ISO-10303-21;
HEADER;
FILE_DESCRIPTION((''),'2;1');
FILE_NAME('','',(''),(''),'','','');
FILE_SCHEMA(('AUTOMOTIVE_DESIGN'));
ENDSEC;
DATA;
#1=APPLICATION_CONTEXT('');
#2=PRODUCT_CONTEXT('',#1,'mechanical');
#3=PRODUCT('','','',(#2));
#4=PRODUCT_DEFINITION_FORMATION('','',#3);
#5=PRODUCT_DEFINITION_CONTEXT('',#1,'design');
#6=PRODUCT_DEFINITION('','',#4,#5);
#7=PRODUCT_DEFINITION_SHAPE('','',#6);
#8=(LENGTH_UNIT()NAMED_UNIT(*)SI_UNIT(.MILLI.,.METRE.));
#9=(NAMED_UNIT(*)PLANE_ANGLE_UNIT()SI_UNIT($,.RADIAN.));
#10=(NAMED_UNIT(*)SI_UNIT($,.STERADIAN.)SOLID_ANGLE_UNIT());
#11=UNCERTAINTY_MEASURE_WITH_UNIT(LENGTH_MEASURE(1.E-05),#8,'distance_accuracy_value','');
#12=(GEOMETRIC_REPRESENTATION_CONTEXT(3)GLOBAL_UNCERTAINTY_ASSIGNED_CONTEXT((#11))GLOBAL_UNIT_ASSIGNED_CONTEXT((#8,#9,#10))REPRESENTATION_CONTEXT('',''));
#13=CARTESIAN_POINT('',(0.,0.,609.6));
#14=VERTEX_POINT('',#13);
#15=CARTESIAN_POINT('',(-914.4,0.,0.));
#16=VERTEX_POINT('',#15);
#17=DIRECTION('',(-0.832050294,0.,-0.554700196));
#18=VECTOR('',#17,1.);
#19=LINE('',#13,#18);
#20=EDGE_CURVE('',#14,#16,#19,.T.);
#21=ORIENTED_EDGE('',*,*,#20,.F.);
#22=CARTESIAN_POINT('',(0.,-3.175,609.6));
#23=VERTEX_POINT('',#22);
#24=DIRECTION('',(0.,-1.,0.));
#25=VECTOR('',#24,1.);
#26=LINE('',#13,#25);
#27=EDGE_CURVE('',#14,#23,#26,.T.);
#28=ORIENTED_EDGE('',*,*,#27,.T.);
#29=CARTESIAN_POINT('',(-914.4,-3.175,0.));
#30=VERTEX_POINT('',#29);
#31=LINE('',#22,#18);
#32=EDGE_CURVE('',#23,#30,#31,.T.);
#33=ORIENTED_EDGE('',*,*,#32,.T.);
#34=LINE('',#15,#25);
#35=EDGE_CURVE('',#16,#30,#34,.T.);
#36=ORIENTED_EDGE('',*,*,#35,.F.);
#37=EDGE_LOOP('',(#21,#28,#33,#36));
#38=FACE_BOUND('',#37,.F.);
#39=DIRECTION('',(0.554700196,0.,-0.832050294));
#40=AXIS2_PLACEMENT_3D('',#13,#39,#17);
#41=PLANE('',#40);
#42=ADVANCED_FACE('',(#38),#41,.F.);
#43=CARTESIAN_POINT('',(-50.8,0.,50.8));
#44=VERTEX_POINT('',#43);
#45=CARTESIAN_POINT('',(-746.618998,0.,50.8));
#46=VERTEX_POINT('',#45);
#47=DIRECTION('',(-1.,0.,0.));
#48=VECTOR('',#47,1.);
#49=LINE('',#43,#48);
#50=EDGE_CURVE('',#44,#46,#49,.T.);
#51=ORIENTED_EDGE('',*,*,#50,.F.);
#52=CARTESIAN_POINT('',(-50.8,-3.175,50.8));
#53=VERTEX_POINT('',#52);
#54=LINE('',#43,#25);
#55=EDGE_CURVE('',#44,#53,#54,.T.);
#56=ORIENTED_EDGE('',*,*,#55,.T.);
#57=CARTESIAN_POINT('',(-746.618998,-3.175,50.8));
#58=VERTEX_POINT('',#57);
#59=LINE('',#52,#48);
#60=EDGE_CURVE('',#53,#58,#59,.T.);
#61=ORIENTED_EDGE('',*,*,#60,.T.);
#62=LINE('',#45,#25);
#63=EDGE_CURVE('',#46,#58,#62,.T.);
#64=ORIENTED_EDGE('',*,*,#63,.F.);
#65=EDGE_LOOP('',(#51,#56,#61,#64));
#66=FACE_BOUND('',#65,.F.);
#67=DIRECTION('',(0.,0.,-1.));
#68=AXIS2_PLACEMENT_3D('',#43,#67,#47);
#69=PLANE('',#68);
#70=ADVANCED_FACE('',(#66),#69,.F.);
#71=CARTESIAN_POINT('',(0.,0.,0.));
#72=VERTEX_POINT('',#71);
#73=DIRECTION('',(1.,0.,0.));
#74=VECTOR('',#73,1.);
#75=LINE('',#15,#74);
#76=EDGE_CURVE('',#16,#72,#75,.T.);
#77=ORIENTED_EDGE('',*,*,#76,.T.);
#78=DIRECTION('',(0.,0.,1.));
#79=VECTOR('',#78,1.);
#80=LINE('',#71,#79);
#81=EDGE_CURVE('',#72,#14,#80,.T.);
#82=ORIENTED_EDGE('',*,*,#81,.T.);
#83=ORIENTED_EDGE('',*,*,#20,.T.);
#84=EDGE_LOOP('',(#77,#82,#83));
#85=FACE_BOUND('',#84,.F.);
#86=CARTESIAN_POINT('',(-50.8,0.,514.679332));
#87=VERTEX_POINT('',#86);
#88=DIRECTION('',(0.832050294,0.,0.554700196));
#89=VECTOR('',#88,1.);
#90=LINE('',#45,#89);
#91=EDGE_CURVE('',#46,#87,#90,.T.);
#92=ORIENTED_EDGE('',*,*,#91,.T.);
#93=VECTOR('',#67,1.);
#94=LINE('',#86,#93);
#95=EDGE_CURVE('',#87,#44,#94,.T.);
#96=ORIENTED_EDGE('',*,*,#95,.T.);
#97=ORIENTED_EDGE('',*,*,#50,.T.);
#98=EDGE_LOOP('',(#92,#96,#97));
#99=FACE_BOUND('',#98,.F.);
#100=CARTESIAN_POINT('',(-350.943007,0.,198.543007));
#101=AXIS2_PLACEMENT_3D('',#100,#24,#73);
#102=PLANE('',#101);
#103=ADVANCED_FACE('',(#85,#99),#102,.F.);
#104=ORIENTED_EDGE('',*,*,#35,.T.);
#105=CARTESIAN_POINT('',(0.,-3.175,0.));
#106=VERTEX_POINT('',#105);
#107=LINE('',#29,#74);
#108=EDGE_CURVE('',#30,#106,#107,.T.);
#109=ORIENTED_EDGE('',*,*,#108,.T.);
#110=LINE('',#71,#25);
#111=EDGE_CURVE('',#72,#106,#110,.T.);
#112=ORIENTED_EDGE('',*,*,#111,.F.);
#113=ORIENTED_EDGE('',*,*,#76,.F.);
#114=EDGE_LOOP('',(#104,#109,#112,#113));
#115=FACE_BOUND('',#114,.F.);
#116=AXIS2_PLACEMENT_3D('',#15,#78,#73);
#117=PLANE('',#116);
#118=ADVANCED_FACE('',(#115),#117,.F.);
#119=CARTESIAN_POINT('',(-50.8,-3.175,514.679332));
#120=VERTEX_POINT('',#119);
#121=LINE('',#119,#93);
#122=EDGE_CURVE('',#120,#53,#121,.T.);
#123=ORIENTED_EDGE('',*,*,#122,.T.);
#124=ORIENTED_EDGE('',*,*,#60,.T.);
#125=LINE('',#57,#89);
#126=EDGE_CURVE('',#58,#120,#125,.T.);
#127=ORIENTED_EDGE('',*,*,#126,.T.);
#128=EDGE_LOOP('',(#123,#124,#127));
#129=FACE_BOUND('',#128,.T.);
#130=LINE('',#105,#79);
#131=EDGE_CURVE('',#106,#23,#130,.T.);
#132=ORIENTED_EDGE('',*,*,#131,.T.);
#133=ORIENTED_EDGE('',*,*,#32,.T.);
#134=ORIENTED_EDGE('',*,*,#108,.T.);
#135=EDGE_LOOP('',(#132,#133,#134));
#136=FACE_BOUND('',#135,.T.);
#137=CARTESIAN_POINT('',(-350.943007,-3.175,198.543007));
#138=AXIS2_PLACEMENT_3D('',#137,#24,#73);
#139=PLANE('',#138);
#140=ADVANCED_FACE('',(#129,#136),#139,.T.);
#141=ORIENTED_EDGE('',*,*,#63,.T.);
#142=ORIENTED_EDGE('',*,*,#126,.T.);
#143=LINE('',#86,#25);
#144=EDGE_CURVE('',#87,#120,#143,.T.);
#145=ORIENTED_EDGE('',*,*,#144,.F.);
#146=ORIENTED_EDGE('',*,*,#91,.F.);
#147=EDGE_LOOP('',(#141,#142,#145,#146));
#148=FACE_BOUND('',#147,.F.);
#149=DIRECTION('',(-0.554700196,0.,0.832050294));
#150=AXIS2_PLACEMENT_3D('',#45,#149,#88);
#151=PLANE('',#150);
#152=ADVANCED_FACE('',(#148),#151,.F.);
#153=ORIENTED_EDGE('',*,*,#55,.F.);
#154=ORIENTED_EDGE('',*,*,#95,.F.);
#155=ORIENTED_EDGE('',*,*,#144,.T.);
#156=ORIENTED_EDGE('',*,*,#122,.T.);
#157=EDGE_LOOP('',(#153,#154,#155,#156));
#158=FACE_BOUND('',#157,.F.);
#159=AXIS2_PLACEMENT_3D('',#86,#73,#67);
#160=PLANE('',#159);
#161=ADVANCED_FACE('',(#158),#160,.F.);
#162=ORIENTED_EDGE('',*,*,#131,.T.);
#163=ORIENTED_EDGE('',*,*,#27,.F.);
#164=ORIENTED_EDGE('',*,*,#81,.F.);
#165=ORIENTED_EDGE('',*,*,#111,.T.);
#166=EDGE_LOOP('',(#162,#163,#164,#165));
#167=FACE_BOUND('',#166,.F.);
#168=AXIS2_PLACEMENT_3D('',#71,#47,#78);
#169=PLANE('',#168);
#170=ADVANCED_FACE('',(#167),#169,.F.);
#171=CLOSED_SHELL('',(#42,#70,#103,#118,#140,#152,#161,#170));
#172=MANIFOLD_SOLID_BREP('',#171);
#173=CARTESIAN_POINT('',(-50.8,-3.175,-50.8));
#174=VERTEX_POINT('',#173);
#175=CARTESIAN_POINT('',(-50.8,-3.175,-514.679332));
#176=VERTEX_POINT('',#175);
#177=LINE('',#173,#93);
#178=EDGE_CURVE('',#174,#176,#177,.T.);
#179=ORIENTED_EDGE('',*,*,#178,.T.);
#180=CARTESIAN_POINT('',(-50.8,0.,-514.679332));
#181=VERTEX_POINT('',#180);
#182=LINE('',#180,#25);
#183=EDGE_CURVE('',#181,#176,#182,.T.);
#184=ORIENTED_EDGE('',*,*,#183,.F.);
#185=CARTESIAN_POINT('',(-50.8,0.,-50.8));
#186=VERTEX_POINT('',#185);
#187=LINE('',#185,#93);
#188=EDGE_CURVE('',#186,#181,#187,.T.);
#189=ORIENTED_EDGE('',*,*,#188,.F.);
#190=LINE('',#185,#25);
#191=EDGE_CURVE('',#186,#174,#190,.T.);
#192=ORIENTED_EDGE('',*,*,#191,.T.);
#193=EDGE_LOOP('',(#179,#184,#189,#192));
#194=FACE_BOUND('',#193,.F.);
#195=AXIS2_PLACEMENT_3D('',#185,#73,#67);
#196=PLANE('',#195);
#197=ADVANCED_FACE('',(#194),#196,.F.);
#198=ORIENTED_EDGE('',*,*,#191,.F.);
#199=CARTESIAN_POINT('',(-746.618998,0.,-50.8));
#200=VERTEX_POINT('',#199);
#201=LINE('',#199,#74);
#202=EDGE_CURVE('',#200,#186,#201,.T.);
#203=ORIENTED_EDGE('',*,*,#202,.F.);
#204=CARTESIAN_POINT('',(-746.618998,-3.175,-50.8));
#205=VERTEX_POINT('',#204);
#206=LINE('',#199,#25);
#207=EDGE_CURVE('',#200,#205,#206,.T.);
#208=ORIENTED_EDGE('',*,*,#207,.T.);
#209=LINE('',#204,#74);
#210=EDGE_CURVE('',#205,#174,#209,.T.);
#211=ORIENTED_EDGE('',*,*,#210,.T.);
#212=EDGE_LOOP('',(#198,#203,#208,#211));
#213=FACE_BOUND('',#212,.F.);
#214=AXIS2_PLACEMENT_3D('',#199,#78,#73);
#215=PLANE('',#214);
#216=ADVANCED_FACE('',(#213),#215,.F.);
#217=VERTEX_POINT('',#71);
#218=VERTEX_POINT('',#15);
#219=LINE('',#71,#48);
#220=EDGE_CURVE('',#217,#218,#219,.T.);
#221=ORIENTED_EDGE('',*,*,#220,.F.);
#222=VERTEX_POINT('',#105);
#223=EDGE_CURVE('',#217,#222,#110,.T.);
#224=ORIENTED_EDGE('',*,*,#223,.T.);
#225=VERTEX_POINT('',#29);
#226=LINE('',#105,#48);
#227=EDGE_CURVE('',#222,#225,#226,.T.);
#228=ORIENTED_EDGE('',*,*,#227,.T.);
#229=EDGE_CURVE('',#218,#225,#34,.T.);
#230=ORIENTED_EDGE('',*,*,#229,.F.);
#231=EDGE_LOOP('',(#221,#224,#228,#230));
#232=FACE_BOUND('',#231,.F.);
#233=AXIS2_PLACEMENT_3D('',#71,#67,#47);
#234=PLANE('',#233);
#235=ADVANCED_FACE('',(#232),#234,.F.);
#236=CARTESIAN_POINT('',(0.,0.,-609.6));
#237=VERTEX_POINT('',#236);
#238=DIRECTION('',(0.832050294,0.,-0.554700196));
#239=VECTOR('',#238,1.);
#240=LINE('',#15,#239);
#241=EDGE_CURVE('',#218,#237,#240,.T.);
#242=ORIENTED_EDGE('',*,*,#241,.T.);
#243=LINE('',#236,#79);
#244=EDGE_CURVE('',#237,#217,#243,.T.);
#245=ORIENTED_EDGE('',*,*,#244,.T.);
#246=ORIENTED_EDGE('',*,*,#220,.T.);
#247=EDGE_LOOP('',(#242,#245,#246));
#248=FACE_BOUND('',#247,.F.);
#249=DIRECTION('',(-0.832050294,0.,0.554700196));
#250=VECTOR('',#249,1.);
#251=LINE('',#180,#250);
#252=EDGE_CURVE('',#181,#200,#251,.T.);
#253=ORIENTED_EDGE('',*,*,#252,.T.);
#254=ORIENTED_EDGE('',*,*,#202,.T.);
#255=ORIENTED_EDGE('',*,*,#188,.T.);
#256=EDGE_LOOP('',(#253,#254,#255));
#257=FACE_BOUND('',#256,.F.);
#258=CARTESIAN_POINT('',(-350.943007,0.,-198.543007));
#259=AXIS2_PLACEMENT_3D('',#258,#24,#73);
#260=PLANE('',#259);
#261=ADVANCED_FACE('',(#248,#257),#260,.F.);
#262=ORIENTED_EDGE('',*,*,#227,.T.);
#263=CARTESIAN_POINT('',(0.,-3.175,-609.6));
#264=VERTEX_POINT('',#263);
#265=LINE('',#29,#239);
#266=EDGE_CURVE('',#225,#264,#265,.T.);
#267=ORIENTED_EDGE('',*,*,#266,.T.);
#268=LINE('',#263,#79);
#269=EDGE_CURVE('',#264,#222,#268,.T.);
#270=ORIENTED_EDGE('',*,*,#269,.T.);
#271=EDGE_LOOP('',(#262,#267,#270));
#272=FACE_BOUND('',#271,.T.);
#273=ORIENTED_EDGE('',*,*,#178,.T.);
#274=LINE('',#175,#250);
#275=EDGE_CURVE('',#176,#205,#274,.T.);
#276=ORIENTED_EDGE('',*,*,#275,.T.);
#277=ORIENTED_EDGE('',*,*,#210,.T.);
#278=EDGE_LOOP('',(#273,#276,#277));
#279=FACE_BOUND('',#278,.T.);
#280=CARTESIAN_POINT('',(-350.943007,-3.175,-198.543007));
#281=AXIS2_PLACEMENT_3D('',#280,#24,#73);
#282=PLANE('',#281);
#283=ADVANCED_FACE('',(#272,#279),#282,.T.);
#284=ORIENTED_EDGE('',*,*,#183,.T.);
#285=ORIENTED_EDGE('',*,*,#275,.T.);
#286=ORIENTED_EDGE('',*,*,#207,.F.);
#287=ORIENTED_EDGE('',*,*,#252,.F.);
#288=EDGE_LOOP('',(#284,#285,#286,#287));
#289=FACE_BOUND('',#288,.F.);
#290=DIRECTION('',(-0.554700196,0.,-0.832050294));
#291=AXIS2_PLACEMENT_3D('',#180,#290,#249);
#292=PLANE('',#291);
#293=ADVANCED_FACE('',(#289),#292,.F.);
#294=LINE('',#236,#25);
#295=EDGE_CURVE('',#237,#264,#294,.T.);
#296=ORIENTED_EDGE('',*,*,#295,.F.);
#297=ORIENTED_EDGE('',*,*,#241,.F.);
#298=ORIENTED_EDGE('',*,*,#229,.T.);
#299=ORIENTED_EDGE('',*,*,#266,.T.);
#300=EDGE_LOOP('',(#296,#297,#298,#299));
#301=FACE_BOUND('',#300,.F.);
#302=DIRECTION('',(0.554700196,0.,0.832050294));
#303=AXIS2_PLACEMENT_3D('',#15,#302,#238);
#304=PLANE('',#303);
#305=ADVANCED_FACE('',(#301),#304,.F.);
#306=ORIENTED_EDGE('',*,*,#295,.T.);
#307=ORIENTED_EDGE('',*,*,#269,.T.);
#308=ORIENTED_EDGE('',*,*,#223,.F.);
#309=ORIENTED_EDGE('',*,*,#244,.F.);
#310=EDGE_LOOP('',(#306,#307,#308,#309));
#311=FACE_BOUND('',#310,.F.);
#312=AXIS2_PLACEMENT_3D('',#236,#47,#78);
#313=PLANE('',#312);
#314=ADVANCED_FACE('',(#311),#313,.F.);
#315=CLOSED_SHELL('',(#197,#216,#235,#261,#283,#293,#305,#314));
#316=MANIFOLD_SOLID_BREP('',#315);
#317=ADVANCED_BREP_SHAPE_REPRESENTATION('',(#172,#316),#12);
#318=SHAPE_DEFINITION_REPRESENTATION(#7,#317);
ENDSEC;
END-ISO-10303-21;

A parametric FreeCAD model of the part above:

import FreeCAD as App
import Part
import Sketcher
from FreeCAD import Vector
Q = App.Units.Quantity

doc = App.newDocument("Part")
params = doc.addObject("Spreadsheet::Sheet", "Params")
for row, (alias, value) in enumerate([
    ("sketch1_width", "36 in"),
    ("sketch1_height", "24 in"),
    ("pad1_length", "0.125 in"),
    ("sketch2_width", "36 in"),
    ("sketch2_height", "24 in"),
    ("pad2_length", "0.125 in"),
], start=1):
    params.set(f"A{row}", alias)
    params.set(f"B{row}", "=" + value)
    params.setAlias(f"B{row}", alias)

body = doc.addObject("PartDesign::Body", "Body")

# Sketch on XZ plane
sketch1 = doc.addObject("Sketcher::SketchObject", "Sketch")
body.addObject(sketch1)
sketch1.AttachmentSupport = (doc.XZ_Plane, [""])
sketch1.MapMode = "FlatFace"
sketch1.addGeometry(Part.LineSegment(Vector(-914, 0, 0), Vector(0, 0, 0)), False)
sketch1.addGeometry(Part.LineSegment(Vector(0, 0, 0), Vector(0, 610, 0)), False)
sketch1.addGeometry(Part.LineSegment(Vector(0, 610, 0), Vector(-914, 0, 0)), False)
sketch1.addGeometry(Part.LineSegment(Vector(-51, 51, 0), Vector(-747, 51, 0)), False)
sketch1.addGeometry(Part.LineSegment(Vector(-747, 51, 0), Vector(-51, 515, 0)), False)
sketch1.addGeometry(Part.LineSegment(Vector(-51, 515, 0), Vector(-51, 51, 0)), False)
sketch1.addConstraint(Sketcher.Constraint("Coincident", 0, 2, 1, 1))
sketch1.addConstraint(Sketcher.Constraint("Coincident", 1, 2, 2, 1))
sketch1.addConstraint(Sketcher.Constraint("Coincident", 2, 2, 0, 1))
sketch1.addConstraint(Sketcher.Constraint("Coincident", 3, 2, 4, 1))
sketch1.addConstraint(Sketcher.Constraint("Coincident", 4, 2, 5, 1))
sketch1.addConstraint(Sketcher.Constraint("Coincident", 5, 2, 3, 1))
sketch1.addConstraint(Sketcher.Constraint("Horizontal", 0))
sketch1.addConstraint(Sketcher.Constraint("Vertical", 1))
sketch1.addConstraint(Sketcher.Constraint("Horizontal", 3))
sketch1.addConstraint(Sketcher.Constraint("Vertical", 5))
sketch1.addConstraint(Sketcher.Constraint("Coincident", 0, 2, -1, 1))
sketch1.addConstraint(Sketcher.Constraint("Parallel", 2, 4))
sketch1.addConstraint(Sketcher.Constraint("DistanceX", 0, 1, 0, 2, Q("36 in")))
sketch1.addConstraint(Sketcher.Constraint("DistanceY", 1, 1, 1, 2, Q("24 in")))
sketch1.addConstraint(Sketcher.Constraint("DistanceY", -1, 1, 3, 2, Q("2 in")))
sketch1.addConstraint(Sketcher.Constraint("DistanceX", 4, 2, -1, 1, Q("2 in")))
sketch1.addConstraint(Sketcher.Constraint("DistanceX", 3, 2, 3, 1, 695.818998))
sketch1.setExpression("Constraints[12]", "Params.sketch1_width")
sketch1.setExpression("Constraints[13]", "Params.sketch1_height")
pad1 = doc.addObject("PartDesign::Pad", "Pad")
body.addObject(pad1)
pad1.Profile = sketch1
pad1.setExpression("Length", "Params.pad1_length")
body2 = doc.addObject("PartDesign::Body", "Body001")

# Sketch on XZ plane
sketch2 = doc.addObject("Sketcher::SketchObject", "Sketch001")
body2.addObject(sketch2)
sketch2.AttachmentSupport = (doc.getObject("XZ_Plane001"), [""])
sketch2.MapMode = "FlatFace"
sketch2.addGeometry(Part.LineSegment(Vector(0, -610, 0), Vector(0, 0, 0)), False)
sketch2.addGeometry(Part.LineSegment(Vector(0, 0, 0), Vector(-914, 0, 0)), False)
sketch2.addGeometry(Part.LineSegment(Vector(-914, 0, 0), Vector(0, -610, 0)), False)
sketch2.addGeometry(Part.LineSegment(Vector(-51, -515, 0), Vector(-747, -51, 0)), False)
sketch2.addGeometry(Part.LineSegment(Vector(-747, -51, 0), Vector(-51, -51, 0)), False)
sketch2.addGeometry(Part.LineSegment(Vector(-51, -51, 0), Vector(-51, -515, 0)), False)
sketch2.addConstraint(Sketcher.Constraint("Coincident", 0, 2, 1, 1))
sketch2.addConstraint(Sketcher.Constraint("Coincident", 1, 2, 2, 1))
sketch2.addConstraint(Sketcher.Constraint("Coincident", 2, 2, 0, 1))
sketch2.addConstraint(Sketcher.Constraint("Coincident", 3, 2, 4, 1))
sketch2.addConstraint(Sketcher.Constraint("Coincident", 4, 2, 5, 1))
sketch2.addConstraint(Sketcher.Constraint("Coincident", 5, 2, 3, 1))
sketch2.addConstraint(Sketcher.Constraint("Vertical", 0))
sketch2.addConstraint(Sketcher.Constraint("Horizontal", 1))
sketch2.addConstraint(Sketcher.Constraint("Horizontal", 4))
sketch2.addConstraint(Sketcher.Constraint("Vertical", 5))
sketch2.addConstraint(Sketcher.Constraint("Coincident", 0, 2, -1, 1))
sketch2.addConstraint(Sketcher.Constraint("Parallel", 2, 3))
sketch2.addConstraint(Sketcher.Constraint("DistanceX", 1, 2, 1, 1, Q("36 in")))
sketch2.addConstraint(Sketcher.Constraint("DistanceY", 0, 1, 0, 2, Q("24 in")))
sketch2.addConstraint(Sketcher.Constraint("DistanceY", 3, 2, -1, 1, Q("2 in")))
sketch2.addConstraint(Sketcher.Constraint("DistanceX", 4, 2, -1, 1, Q("2 in")))
sketch2.addConstraint(Sketcher.Constraint("DistanceX", 4, 1, 4, 2, 695.818998))
sketch2.setExpression("Constraints[12]", "Params.sketch2_width")
sketch2.setExpression("Constraints[13]", "Params.sketch2_height")
pad2 = doc.addObject("PartDesign::Pad", "Pad001")
body2.addObject(pad2)
pad2.Profile = sketch2
pad2.setExpression("Length", "Params.pad2_length")

doc.recompute()
